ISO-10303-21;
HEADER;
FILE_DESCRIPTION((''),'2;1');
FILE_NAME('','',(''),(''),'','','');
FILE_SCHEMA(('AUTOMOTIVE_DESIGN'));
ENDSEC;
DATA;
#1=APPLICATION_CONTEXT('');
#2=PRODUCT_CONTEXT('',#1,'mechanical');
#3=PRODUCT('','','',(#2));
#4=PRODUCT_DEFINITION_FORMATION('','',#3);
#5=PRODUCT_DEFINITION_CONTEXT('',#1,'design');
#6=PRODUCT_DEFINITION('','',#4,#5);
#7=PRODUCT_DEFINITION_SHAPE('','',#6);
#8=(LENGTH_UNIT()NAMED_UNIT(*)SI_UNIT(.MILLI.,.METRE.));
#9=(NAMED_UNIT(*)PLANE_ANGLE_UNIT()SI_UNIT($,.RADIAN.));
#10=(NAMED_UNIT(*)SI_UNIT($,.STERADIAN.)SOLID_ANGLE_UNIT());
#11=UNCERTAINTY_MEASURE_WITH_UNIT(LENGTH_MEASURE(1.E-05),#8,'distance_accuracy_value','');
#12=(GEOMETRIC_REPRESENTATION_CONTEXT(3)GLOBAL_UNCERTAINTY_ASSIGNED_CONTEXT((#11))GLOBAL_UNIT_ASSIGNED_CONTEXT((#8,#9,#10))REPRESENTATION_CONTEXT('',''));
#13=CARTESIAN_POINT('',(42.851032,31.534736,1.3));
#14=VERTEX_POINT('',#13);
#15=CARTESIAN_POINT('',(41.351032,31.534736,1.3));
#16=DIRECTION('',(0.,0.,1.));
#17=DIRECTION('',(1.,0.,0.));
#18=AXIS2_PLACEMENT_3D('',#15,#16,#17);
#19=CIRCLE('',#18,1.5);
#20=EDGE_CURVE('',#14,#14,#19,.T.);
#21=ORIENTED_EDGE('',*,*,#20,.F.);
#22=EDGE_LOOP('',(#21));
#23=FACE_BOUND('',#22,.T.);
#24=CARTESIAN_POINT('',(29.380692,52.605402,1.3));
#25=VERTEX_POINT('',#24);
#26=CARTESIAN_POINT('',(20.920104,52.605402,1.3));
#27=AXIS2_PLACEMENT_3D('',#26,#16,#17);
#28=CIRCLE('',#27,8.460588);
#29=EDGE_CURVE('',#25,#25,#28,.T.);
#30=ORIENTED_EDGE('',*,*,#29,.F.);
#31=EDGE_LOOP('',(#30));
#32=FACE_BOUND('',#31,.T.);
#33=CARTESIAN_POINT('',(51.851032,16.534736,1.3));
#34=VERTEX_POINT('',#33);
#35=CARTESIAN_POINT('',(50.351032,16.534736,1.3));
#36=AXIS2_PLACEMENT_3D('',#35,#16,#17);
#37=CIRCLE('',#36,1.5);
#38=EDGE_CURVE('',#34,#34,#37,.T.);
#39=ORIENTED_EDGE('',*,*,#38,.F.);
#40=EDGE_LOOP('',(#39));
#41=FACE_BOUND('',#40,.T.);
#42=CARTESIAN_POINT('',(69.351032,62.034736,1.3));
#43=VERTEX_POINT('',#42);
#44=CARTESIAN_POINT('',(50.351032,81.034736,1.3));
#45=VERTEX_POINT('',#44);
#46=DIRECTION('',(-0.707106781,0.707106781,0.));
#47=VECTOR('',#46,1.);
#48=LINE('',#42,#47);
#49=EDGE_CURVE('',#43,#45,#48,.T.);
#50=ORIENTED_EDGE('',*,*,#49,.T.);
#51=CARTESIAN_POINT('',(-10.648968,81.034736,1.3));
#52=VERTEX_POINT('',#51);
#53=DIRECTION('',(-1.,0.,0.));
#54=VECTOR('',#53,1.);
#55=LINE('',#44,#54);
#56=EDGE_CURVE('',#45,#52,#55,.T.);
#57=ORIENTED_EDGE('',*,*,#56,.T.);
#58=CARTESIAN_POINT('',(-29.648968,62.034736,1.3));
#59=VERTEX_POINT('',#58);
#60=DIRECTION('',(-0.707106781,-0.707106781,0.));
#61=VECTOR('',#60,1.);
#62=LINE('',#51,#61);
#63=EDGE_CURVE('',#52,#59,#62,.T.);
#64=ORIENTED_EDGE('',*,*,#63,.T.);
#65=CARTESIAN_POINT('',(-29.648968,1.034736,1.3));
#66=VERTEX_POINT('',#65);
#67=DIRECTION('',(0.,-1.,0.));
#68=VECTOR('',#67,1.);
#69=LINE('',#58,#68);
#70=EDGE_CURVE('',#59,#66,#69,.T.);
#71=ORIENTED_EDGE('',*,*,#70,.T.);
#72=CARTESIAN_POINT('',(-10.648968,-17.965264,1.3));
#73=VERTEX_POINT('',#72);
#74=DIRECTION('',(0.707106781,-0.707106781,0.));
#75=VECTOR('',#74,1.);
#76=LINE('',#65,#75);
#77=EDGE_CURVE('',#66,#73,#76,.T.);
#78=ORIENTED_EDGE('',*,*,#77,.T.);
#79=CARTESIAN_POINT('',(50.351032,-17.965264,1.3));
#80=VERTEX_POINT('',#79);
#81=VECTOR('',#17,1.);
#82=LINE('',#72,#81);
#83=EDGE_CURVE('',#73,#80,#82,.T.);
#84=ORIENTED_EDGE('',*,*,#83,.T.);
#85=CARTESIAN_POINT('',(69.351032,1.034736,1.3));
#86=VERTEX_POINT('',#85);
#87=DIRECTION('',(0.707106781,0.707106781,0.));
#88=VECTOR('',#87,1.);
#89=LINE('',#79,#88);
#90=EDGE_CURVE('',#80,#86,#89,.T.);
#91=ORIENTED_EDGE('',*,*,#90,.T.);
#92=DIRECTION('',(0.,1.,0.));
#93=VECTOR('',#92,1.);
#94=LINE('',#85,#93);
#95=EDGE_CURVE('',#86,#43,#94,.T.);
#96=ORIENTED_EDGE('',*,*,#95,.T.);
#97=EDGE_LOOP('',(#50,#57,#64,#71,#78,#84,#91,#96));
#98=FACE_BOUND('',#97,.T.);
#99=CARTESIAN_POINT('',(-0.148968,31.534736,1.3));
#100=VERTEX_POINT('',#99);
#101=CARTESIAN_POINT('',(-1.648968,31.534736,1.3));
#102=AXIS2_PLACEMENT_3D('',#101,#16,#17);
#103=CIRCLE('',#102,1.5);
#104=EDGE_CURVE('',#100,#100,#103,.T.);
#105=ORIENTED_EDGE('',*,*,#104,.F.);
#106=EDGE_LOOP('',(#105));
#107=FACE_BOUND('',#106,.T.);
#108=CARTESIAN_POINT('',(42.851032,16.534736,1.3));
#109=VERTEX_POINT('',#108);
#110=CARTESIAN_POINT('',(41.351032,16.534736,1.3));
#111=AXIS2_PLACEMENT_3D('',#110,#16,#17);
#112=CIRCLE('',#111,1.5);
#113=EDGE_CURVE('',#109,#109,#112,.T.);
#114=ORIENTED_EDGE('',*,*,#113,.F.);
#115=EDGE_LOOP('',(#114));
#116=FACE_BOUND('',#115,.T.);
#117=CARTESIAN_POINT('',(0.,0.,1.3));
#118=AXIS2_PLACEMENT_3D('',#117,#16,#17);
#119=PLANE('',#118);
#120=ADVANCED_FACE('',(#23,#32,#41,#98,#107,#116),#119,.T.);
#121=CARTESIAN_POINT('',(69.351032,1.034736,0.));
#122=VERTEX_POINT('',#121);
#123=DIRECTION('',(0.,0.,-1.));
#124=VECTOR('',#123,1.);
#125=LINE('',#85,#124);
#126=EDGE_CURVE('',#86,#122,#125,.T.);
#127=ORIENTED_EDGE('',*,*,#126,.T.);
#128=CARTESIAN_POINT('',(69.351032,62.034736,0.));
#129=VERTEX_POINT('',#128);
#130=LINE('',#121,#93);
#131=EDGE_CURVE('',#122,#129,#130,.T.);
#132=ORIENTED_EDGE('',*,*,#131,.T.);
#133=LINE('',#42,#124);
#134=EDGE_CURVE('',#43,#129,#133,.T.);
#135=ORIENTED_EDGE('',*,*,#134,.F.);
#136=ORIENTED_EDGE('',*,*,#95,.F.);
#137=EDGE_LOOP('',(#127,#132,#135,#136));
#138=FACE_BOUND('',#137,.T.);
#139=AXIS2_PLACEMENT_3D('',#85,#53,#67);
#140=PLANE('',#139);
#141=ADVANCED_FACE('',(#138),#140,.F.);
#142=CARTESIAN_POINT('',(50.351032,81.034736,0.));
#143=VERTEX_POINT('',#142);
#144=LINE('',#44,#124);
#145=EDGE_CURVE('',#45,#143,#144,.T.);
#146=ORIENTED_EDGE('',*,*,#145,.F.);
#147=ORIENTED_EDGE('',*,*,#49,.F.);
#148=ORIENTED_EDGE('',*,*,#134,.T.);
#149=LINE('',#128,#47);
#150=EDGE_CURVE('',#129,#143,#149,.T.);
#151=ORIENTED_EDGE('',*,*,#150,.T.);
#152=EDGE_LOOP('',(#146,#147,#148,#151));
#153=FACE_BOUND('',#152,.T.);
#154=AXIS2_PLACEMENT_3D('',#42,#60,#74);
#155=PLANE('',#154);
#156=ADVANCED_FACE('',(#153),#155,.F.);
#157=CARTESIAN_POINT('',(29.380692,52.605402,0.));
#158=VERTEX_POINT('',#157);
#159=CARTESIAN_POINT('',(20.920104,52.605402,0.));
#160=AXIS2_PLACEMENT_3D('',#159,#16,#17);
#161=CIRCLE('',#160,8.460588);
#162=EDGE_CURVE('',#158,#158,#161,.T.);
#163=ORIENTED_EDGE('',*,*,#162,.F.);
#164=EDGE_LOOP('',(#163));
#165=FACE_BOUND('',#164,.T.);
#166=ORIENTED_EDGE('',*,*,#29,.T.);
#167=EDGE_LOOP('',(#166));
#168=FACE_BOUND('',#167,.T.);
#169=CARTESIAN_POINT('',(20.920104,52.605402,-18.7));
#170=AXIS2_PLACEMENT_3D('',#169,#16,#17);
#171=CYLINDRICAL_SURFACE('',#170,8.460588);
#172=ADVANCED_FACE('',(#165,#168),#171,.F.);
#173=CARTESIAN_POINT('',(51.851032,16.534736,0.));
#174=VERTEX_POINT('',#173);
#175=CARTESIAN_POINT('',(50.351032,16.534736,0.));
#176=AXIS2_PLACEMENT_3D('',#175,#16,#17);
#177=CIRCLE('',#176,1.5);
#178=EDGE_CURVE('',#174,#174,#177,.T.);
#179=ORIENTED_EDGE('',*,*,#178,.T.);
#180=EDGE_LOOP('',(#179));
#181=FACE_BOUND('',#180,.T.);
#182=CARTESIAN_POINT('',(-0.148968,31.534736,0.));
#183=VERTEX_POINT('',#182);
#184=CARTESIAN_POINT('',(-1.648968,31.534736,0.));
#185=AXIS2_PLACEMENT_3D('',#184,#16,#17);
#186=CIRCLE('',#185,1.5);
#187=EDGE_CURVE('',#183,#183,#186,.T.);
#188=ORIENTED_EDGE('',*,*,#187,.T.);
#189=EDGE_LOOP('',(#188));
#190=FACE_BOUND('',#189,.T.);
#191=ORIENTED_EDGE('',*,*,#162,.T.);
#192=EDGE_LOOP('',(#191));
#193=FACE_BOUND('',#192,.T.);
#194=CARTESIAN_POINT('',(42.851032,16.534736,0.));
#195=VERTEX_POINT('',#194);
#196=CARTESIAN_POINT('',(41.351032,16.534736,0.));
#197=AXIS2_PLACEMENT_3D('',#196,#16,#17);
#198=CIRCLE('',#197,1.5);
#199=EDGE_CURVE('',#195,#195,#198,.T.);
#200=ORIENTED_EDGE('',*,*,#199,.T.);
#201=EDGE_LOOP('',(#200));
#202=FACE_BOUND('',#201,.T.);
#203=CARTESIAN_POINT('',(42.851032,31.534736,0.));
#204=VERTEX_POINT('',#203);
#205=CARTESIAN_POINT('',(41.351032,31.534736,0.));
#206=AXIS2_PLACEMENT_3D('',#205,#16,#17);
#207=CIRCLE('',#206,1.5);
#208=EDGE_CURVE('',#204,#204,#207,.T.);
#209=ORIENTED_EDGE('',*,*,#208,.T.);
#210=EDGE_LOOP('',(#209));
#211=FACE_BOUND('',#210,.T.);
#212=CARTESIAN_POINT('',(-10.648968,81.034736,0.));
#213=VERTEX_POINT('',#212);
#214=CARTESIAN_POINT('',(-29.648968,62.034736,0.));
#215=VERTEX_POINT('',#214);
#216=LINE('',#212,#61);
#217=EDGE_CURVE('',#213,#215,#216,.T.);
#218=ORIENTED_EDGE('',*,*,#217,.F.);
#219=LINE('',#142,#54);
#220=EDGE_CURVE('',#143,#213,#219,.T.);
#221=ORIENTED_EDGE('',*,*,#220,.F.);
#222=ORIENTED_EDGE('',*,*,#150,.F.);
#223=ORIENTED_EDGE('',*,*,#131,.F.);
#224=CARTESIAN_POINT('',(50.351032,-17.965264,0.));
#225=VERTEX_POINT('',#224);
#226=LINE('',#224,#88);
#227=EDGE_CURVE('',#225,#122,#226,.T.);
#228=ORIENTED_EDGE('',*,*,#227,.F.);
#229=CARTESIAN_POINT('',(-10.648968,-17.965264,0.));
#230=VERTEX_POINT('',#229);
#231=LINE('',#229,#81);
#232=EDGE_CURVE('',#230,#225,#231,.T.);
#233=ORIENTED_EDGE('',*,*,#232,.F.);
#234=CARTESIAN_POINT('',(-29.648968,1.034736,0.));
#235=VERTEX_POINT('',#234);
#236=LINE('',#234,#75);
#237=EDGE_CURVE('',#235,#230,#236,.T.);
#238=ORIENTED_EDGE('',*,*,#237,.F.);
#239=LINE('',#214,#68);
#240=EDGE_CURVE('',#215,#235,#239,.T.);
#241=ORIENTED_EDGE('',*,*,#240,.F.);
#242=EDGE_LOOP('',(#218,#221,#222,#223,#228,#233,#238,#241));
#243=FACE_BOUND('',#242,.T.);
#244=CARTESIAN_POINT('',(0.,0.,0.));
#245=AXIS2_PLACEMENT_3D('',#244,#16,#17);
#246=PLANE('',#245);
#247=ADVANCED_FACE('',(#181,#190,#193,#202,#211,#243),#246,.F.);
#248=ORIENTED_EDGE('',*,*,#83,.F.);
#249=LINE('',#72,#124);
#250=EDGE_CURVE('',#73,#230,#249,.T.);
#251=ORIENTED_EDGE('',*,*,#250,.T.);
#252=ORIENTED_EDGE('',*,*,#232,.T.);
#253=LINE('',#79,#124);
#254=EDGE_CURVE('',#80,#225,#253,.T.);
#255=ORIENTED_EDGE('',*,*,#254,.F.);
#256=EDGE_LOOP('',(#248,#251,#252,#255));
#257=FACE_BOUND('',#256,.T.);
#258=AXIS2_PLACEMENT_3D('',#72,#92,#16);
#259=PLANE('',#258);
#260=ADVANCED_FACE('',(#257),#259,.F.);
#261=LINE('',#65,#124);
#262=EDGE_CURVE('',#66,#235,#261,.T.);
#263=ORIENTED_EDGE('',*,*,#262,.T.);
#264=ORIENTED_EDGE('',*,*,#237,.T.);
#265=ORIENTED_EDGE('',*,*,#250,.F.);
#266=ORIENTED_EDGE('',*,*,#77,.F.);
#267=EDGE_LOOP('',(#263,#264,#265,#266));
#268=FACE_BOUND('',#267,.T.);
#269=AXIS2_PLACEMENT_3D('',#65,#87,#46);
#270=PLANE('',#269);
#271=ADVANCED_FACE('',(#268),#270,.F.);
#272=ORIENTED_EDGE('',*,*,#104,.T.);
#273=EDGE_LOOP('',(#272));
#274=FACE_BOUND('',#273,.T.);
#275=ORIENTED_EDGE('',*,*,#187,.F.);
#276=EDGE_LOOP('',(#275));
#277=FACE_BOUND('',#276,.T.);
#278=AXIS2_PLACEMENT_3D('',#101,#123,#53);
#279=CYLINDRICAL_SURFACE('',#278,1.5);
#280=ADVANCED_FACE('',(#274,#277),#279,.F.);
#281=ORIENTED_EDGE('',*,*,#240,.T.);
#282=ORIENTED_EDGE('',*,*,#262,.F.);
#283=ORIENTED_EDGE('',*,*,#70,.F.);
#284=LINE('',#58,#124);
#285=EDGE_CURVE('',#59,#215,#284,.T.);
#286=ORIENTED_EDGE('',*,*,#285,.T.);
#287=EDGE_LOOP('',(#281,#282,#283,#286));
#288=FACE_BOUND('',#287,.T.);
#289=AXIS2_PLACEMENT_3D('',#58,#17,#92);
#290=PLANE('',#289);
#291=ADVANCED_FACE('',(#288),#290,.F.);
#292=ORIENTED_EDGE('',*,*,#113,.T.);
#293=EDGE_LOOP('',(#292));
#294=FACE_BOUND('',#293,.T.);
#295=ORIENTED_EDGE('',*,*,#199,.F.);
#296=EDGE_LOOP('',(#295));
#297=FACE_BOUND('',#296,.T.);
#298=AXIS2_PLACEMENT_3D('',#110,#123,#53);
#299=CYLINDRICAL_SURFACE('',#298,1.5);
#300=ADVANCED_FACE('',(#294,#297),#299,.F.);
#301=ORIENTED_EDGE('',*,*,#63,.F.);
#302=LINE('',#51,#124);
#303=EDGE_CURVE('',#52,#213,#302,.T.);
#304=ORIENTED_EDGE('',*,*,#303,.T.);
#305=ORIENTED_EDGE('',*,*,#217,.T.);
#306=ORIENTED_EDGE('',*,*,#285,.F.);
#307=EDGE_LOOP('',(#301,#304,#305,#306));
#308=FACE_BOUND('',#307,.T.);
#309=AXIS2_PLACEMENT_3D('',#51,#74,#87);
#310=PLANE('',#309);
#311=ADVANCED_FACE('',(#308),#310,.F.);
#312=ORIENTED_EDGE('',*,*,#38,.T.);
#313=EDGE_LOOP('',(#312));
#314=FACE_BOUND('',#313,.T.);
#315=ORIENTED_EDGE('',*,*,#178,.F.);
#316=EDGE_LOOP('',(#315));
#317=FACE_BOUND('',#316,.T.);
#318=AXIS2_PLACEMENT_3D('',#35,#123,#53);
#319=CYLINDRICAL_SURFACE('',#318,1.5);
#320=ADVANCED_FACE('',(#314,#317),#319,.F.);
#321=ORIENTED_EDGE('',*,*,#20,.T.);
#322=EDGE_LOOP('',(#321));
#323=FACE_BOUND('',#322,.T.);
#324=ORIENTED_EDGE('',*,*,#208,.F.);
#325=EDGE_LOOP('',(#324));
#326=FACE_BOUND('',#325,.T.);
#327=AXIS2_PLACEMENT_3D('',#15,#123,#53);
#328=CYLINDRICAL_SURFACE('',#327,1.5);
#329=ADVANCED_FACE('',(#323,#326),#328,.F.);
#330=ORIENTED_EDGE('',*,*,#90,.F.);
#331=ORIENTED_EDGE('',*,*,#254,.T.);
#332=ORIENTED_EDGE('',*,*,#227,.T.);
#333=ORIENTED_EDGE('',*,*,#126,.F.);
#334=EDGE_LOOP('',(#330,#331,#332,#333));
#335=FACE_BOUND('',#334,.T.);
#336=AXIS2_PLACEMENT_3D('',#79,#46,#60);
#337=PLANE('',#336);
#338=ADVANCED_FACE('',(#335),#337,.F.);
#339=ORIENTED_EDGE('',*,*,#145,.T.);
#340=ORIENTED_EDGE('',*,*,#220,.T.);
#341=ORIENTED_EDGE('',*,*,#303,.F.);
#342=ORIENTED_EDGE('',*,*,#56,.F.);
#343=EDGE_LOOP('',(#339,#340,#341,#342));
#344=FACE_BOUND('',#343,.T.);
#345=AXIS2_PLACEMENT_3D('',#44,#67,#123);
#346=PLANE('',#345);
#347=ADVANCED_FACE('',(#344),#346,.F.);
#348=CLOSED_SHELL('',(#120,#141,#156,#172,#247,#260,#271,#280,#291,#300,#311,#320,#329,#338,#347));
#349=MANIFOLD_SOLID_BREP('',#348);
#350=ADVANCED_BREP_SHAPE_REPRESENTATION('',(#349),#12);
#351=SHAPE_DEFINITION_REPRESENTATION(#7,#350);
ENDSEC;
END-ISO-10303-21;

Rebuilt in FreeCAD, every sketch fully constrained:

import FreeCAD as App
import Part
import Sketcher
Q = App.Units.Quantity

doc = App.newDocument("Part")
body = doc.addObject("PartDesign::Body", "Body")

sketch1 = body.newObject("Sketcher::SketchObject", "Sketch")
sketch1.AttachmentSupport = (doc.getObject("XY_Plane"), [""])
sketch1.MapMode = "FlatFace"
sketch1.addGeometry(Part.LineSegment(App.Vector(-29.6, 62, 0), App.Vector(-29.6, 1, 0)), False)
sketch1.addGeometry(Part.LineSegment(App.Vector(-29.6, 1, 0), App.Vector(-10.6, -18, 0)), False)
sketch1.addGeometry(Part.LineSegment(App.Vector(-10.6, -18, 0), App.Vector(50.4, -18, 0)), False)
sketch1.addGeometry(Part.LineSegment(App.Vector(50.4, -18, 0), App.Vector(69.4, 1, 0)), False)
sketch1.addGeometry(Part.LineSegment(App.Vector(69.4, 1, 0), App.Vector(69.4, 62, 0)), False)
sketch1.addGeometry(Part.LineSegment(App.Vector(69.4, 62, 0), App.Vector(50.4, 81, 0)), False)
sketch1.addGeometry(Part.LineSegment(App.Vector(50.4, 81, 0), App.Vector(-10.6, 81, 0)), False)
sketch1.addGeometry(Part.LineSegment(App.Vector(-10.6, 81, 0), App.Vector(-29.6, 62, 0)), False)
sketch1.addGeometry(Part.Circle(App.Vector(41.4, 16.5, 0), App.Vector(0, 0, 1), 1.5), False)
sketch1.addGeometry(Part.Circle(App.Vector(50.4, 16.5, 0), App.Vector(0, 0, 1), 1.5), False)
sketch1.addGeometry(Part.Circle(App.Vector(-1.6, 31.5, 0), App.Vector(0, 0, 1), 1.5), False)
sketch1.addGeometry(Part.Circle(App.Vector(41.4, 31.5, 0), App.Vector(0, 0, 1), 1.5), False)
sketch1.addConstraint(Sketcher.Constraint("Coincident", 0, 2, 1, 1))
sketch1.addConstraint(Sketcher.Constraint("Coincident", 1, 2, 2, 1))
sketch1.addConstraint(Sketcher.Constraint("Coincident", 2, 2, 3, 1))
sketch1.addConstraint(Sketcher.Constraint("Coincident", 3, 2, 4, 1))
sketch1.addConstraint(Sketcher.Constraint("Coincident", 4, 2, 5, 1))
sketch1.addConstraint(Sketcher.Constraint("Coincident", 5, 2, 6, 1))
sketch1.addConstraint(Sketcher.Constraint("Coincident", 6, 2, 7, 1))
sketch1.addConstraint(Sketcher.Constraint("Coincident", 7, 2, 0, 1))
sketch1.addConstraint(Sketcher.Constraint("Vertical", 0))
sketch1.addConstraint(Sketcher.Constraint("Horizontal", 2))
sketch1.addConstraint(Sketcher.Constraint("Vertical", 4))
sketch1.addConstraint(Sketcher.Constraint("Horizontal", 6))
sketch1.addConstraint(Sketcher.Constraint("Equal", 8, 9))
sketch1.addConstraint(Sketcher.Constraint("Equal", 9, 10))
sketch1.addConstraint(Sketcher.Constraint("Equal", 10, 11))
sketch1.addConstraint(Sketcher.Constraint("Perpendicular", 1, 3))
sketch1.addConstraint(Sketcher.Constraint("Perpendicular", 3, 5))
sketch1.addConstraint(Sketcher.Constraint("Perpendicular", 5, 7))
sketch1.addConstraint(Sketcher.Constraint("Horizontal", 8, 3, 9, 3))
sketch1.addConstraint(Sketcher.Constraint("Horizontal", 10, 3, 11, 3))
sketch1.addConstraint(Sketcher.Constraint("Horizontal", 0, 2, 3, 2))
sketch1.addConstraint(Sketcher.Constraint("Horizontal", 4, 2, 7, 2))
sketch1.addConstraint(Sketcher.Constraint("Vertical", 8, 3, 11, 3))
sketch1.addConstraint(Sketcher.Constraint("Vertical", 9, 3, 2, 2))
sketch1.addConstraint(Sketcher.Constraint("Vertical", 2, 2, 5, 2))
sketch1.addConstraint(Sketcher.Constraint("Vertical", 1, 2, 6, 2))
sketch1.addConstraint(Sketcher.Constraint("Equal", 6, 0))
sketch1.addConstraint(Sketcher.Constraint("Diameter", 8, Q("3 mm")))
sketch1.addConstraint(Sketcher.Constraint("DistanceX", 2, 1, 2, 2, Q("61 mm")))
sketch1.addConstraint(Sketcher.Constraint("DistanceX", 8, 3, 9, 3, Q("9 mm")))
sketch1.addConstraint(Sketcher.Constraint("DistanceX", 10, 3, 8, 3, Q("43 mm")))
sketch1.addConstraint(Sketcher.Constraint("DistanceY", 8, 3, 10, 3, Q("15 mm")))
sketch1.addConstraint(Sketcher.Constraint("DistanceX", 0, 2, 10, 3, Q("28 mm")))
sketch1.addConstraint(Sketcher.Constraint("DistanceY", 0, 2, 10, 3, Q("30.5 mm")))
sketch1.addConstraint(Sketcher.Constraint("DistanceX", -1, 1, 8, 3, Q("41.351032 mm")))
sketch1.addConstraint(Sketcher.Constraint("DistanceY", -1, 1, 8, 3, Q("16.534736 mm")))
pad1 = body.newObject("PartDesign::Pad", "Pad")
pad1.Profile = sketch1
pad1.Length = 1.3

sketch2 = body.newObject("Sketcher::SketchObject", "Sketch001")
sketch2.AttachmentSupport = (doc.getObject("XY_Plane"), [""])
sketch2.MapMode = "FlatFace"
sketch2.AttachmentOffset = App.Placement(App.Vector(0, 0, 1.3), App.Rotation())
sketch2.addGeometry(Part.Circle(App.Vector(21, 53, 0), App.Vector(0, 0, 1), 8), False)
sketch2.addConstraint(Sketcher.Constraint("Diameter", 0, Q("16.921176 mm")))
sketch2.addConstraint(Sketcher.Constraint("DistanceY", -1, 1, 0, 3, Q("52.605402 mm")))
sketch2.addConstraint(Sketcher.Constraint("DistanceX", -1, 1, 0, 3, Q("20.920104 mm")))
pocket1 = body.newObject("PartDesign::Pocket", "Pocket")
pocket1.Profile = sketch2
pocket1.Length = 20

doc.recompute()
